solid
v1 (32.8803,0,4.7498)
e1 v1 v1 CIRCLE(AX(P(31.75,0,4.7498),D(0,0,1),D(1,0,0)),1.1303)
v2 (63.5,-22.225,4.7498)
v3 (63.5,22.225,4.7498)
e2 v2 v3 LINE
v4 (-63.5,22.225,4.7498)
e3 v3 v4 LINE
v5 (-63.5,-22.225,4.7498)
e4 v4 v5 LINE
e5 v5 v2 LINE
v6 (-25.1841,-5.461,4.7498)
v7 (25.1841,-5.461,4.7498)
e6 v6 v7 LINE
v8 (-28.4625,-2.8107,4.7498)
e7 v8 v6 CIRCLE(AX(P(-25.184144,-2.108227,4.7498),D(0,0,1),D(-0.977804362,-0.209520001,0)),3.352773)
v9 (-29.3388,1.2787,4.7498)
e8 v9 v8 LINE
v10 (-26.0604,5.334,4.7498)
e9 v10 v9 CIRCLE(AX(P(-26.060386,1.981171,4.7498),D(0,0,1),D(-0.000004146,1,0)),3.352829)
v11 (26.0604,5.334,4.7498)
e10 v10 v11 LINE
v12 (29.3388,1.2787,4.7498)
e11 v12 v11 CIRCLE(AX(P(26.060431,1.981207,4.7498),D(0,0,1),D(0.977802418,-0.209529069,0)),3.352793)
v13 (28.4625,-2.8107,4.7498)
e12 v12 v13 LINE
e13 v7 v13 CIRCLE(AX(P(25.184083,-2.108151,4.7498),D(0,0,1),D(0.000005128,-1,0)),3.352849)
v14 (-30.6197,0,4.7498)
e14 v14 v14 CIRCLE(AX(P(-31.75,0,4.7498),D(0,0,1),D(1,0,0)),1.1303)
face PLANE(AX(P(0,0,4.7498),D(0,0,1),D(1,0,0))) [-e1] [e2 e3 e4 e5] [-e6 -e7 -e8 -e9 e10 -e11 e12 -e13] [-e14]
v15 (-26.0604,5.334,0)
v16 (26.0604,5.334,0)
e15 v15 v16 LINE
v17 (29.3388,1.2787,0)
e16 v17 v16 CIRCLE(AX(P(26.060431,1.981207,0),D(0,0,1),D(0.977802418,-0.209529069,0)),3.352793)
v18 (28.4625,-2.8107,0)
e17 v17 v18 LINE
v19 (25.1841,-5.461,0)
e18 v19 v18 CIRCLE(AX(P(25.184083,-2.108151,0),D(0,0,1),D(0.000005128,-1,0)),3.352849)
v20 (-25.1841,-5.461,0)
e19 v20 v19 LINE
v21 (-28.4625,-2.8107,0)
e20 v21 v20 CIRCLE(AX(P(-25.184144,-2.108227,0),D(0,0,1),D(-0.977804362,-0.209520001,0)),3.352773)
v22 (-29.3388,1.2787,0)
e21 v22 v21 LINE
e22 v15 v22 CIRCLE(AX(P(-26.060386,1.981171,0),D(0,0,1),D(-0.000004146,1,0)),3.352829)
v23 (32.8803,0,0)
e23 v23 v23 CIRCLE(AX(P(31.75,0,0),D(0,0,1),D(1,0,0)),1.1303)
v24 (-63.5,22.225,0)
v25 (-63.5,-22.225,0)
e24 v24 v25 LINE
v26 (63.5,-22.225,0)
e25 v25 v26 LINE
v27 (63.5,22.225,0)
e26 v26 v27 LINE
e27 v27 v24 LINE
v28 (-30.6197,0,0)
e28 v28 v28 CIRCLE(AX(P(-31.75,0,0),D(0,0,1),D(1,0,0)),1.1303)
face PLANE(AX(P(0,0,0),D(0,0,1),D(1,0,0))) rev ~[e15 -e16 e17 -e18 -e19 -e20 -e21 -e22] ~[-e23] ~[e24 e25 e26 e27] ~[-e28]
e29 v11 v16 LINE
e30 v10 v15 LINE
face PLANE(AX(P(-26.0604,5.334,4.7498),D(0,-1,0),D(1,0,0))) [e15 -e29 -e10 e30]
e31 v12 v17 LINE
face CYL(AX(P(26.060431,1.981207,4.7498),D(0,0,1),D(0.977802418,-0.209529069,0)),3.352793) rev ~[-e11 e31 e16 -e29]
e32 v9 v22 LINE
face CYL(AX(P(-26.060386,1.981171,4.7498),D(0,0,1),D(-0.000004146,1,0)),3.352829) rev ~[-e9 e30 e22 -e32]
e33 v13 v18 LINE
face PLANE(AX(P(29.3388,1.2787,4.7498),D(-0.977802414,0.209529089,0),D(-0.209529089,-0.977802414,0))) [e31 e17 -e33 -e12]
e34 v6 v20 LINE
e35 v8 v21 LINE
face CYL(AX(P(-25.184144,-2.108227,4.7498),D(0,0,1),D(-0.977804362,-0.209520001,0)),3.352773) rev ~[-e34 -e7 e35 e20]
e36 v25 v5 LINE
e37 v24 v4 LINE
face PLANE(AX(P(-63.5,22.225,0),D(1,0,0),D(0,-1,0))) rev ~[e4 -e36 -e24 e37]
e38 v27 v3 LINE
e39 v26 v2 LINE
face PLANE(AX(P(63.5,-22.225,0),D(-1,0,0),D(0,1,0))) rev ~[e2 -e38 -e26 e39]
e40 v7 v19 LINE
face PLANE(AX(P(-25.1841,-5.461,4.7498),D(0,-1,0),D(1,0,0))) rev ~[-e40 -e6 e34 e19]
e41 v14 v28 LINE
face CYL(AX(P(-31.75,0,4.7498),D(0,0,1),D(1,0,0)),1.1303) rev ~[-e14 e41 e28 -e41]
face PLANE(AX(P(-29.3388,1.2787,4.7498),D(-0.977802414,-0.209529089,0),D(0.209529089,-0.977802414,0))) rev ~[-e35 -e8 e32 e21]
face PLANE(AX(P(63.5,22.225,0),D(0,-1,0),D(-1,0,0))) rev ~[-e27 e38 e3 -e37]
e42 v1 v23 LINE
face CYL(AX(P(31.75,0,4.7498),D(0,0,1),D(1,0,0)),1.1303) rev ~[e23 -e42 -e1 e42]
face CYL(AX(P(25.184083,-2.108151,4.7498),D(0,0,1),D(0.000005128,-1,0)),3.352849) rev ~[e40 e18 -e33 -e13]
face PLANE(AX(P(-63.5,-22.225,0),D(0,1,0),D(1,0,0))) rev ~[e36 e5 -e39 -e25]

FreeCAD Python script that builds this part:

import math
import FreeCAD as App
import Part
import Sketcher
Q = App.Units.Quantity

doc = App.newDocument("Part")
params = doc.addObject("Spreadsheet::Sheet", "Params")
for row, (alias, value) in enumerate([
    ("sketch1_width", "5 in"),
    ("sketch1_height", "1.75 in"),
    ("pad1_length", "0.187 in"),
    ("sketch2_diameter", "0.089 in"),
    ("sketch2_radius", "0.132 in"),
    ("sketch2_width", "2.052 in"),
    ("sketch2_width2", "1.983 in"),
    ("pocket1_length", "0.187 in"),
], start=1):
    params.set(f"A{row}", alias)
    params.set(f"B{row}", "=" + value)
    params.setAlias(f"B{row}", alias)

body = doc.addObject("PartDesign::Body", "Body")

# Sketch on XY plane
sketch1 = body.newObject("Sketcher::SketchObject", "Sketch")
sketch1.AttachmentSupport = (doc.getObject("XY_Plane"), [""])
sketch1.MapMode = "FlatFace"
sketch1.addGeometry(Part.LineSegment(App.Vector(-64, 22, 0), App.Vector(-64, -22, 0)), False)
sketch1.addGeometry(Part.LineSegment(App.Vector(-64, -22, 0), App.Vector(64, -22, 0)), False)
sketch1.addGeometry(Part.LineSegment(App.Vector(64, -22, 0), App.Vector(64, 22, 0)), False)
sketch1.addGeometry(Part.LineSegment(App.Vector(64, 22, 0), App.Vector(-64, 22, 0)), False)
sketch1.addConstraint(Sketcher.Constraint("Coincident", 0, 2, 1, 1))
sketch1.addConstraint(Sketcher.Constraint("Coincident", 1, 2, 2, 1))
sketch1.addConstraint(Sketcher.Constraint("Coincident", 2, 2, 3, 1))
sketch1.addConstraint(Sketcher.Constraint("Coincident", 3, 2, 0, 1))
sketch1.addConstraint(Sketcher.Constraint("Vertical", 0))
sketch1.addConstraint(Sketcher.Constraint("Horizontal", 1))
sketch1.addConstraint(Sketcher.Constraint("Vertical", 2))
sketch1.addConstraint(Sketcher.Constraint("Horizontal", 3))
sketch1.addConstraint(Sketcher.Constraint("Symmetric", 0, 2, 2, 2, -1, 1))
sketch1.addConstraint(Sketcher.Constraint("DistanceX", 1, 1, 1, 2, Q("5 in")))
sketch1.addConstraint(Sketcher.Constraint("DistanceY", 0, 2, 0, 1, Q("1.75 in")))
sketch1.setExpression("Constraints[9]", "Params.sketch1_width")
sketch1.setExpression("Constraints[10]", "Params.sketch1_height")
pad1 = body.newObject("PartDesign::Pad", "Pad")
pad1.Profile = sketch1
pad1.setExpression("Length", "Params.pad1_length")

# Sketch on XY plane
sketch2 = body.newObject("Sketcher::SketchObject", "Sketch001")
sketch2.AttachmentSupport = (doc.getObject("XY_Plane"), [""])
sketch2.MapMode = "FlatFace"
sketch2.AttachmentOffset = App.Placement(App.Vector(0, 0, 0.187 * 25.4), App.Rotation())
sketch2.addGeometry(Part.Circle(App.Vector(-31.8, 0, 0), App.Vector(0, 0, 1), 1.1), False)
sketch2.addGeometry(Part.Circle(App.Vector(31.8, 0, 0), App.Vector(0, 0, 1), 1.1), False)
sketch2.addGeometry(Part.LineSegment(App.Vector(26.1, 5.3, 0), App.Vector(-26.1, 5.3, 0)), False)
sketch2.addGeometry(Part.ArcOfCircle(Part.Circle(App.Vector(-26.1, 2, 0), App.Vector(0, 0, 1), 3.4), math.radians(90), math.radians(192)), False)
sketch2.addGeometry(Part.LineSegment(App.Vector(-29.3, 1.3, 0), App.Vector(-28.5, -2.8, 0)), False)
sketch2.addGeometry(Part.ArcOfCircle(Part.Circle(App.Vector(-25.2, -2.1, 0), App.Vector(0, 0, 1), 3.4), math.radians(-168), math.radians(-90)), False)
sketch2.addGeometry(Part.LineSegment(App.Vector(-25.2, -5.5, 0), App.Vector(25.2, -5.5, 0)), False)
sketch2.addGeometry(Part.ArcOfCircle(Part.Circle(App.Vector(25.2, -2.1, 0), App.Vector(0, 0, 1), 3.4), math.radians(-90), math.radians(-12)), False)
sketch2.addGeometry(Part.LineSegment(App.Vector(28.5, -2.8, 0), App.Vector(29.3, 1.3, 0)), False)
sketch2.addGeometry(Part.ArcOfCircle(Part.Circle(App.Vector(26.1, 2, 0), App.Vector(0, 0, 1), 3.4), math.radians(-12), math.radians(90)), False)
sketch2.addConstraint(Sketcher.Constraint("Tangent", 2, 2, 3, 1))
sketch2.addConstraint(Sketcher.Constraint("Tangent", 3, 2, 4, 1))
sketch2.addConstraint(Sketcher.Constraint("Tangent", 4, 2, 5, 1))
sketch2.addConstraint(Sketcher.Constraint("Tangent", 5, 2, 6, 1))
sketch2.addConstraint(Sketcher.Constraint("Tangent", 6, 2, 7, 1))
sketch2.addConstraint(Sketcher.Constraint("Tangent", 7, 2, 8, 1))
sketch2.addConstraint(Sketcher.Constraint("Tangent", 8, 2, 9, 1))
sketch2.addConstraint(Sketcher.Constraint("Tangent", 9, 2, 2, 1))
sketch2.addConstraint(Sketcher.Constraint("Horizontal", 2))
sketch2.addConstraint(Sketcher.Constraint("Horizontal", 6))
sketch2.addConstraint(Sketcher.Constraint("Equal", 0, 1))
sketch2.addConstraint(Sketcher.Constraint("Equal", 3, 5))
sketch2.addConstraint(Sketcher.Constraint("Equal", 5, 7))
sketch2.addConstraint(Sketcher.Constraint("Equal", 7, 9))
sketch2.addConstraint(Sketcher.Constraint("Symmetric", 0, 3, 1, 3, -1, 1))
sketch2.addConstraint(Sketcher.Constraint("Symmetric", 4, 2, 7, 2, -2))
sketch2.addConstraint(Sketcher.Constraint("PointOnObject", 0, 3, -1))
sketch2.addConstraint(Sketcher.Constraint("Diameter", 0, Q("0.089 in")))
sketch2.addConstraint(Sketcher.Constraint("Radius", 3, Q("0.132 in")))
sketch2.addConstraint(Sketcher.Constraint("DistanceX", 0, 3, 1, 3, Q("2.5 in")))
sketch2.addConstraint(Sketcher.Constraint("DistanceX", 2, 2, 2, 1, Q("2.052 in")))
sketch2.addConstraint(Sketcher.Constraint("DistanceX", 6, 1, 6, 2, Q("1.983 in")))
sketch2.addConstraint(Sketcher.Constraint("DistanceY", -1, 1, 2, 2, Q("0.21 in")))
sketch2.addConstraint(Sketcher.Constraint("DistanceY", 5, 3, -1, 1, Q("0.083 in")))
sketch2.setExpression("Constraints[17]", "Params.sketch2_diameter")
sketch2.setExpression("Constraints[18]", "Params.sketch2_radius")
sketch2.setExpression("Constraints[20]", "Params.sketch2_width")
sketch2.setExpression("Constraints[21]", "Params.sketch2_width2")
pocket1 = body.newObject("PartDesign::Pocket", "Pocket")
pocket1.Profile = sketch2
pocket1.setExpression("Length", "Params.pocket1_length")

doc.recompute()
